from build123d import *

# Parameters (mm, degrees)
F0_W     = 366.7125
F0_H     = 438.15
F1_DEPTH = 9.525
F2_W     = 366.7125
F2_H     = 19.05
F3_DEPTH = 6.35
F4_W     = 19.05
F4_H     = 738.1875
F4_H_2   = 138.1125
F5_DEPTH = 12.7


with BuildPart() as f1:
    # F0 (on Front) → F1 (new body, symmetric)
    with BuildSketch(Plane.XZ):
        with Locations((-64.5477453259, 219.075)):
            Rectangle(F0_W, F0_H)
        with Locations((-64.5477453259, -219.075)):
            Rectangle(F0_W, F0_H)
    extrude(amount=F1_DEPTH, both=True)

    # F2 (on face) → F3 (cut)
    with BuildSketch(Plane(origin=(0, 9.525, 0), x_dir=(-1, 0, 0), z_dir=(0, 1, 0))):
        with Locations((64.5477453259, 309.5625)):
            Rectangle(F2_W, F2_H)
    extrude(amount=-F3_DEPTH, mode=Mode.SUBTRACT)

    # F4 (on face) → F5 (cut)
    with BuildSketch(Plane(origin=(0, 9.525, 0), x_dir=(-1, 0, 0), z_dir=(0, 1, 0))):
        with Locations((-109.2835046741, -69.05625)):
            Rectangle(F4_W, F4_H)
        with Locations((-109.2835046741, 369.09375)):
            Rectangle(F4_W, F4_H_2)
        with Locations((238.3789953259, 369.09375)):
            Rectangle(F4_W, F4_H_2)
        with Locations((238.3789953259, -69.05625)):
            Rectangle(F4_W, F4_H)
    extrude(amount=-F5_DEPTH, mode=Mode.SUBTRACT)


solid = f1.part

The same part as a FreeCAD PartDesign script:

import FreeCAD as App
import Part
import Sketcher
from FreeCAD import Vector
Q = App.Units.Quantity

doc = App.newDocument("Part")
body = doc.addObject("PartDesign::Body", "Body")

sketch1 = body.newObject("Sketcher::SketchObject", "Sketch")
sketch1.AttachmentSupport = (doc.getObject("XZ_Plane"), [""])
sketch1.MapMode = "FlatFace"
sketch1.addGeometry(Part.LineSegment(Vector(-248, 438, 0), Vector(-248, -438, 0)), False)
sketch1.addGeometry(Part.LineSegment(Vector(-248, -438, 0), Vector(119, -438, 0)), False)
sketch1.addGeometry(Part.LineSegment(Vector(119, -438, 0), Vector(119, 438, 0)), False)
sketch1.addGeometry(Part.LineSegment(Vector(119, 438, 0), Vector(-248, 438, 0)), False)
sketch1.addConstraint(Sketcher.Constraint("Coincident", 0, 2, 1, 1))
sketch1.addConstraint(Sketcher.Constraint("Coincident", 1, 2, 2, 1))
sketch1.addConstraint(Sketcher.Constraint("Coincident", 2, 2, 3, 1))
sketch1.addConstraint(Sketcher.Constraint("Coincident", 3, 2, 0, 1))
sketch1.addConstraint(Sketcher.Constraint("Vertical", 0))
sketch1.addConstraint(Sketcher.Constraint("Horizontal", 1))
sketch1.addConstraint(Sketcher.Constraint("Vertical", 2))
sketch1.addConstraint(Sketcher.Constraint("Horizontal", 3))
sketch1.addConstraint(Sketcher.Constraint("DistanceY", 0, 2, 0, 1, Q("34.5 in")))
sketch1.addConstraint(Sketcher.Constraint("DistanceX", 1, 1, 1, 2, Q("14.4375 in")))
sketch1.addConstraint(Sketcher.Constraint("DistanceX", 0, 2, -1, 1, Q("9.7599998 in")))
sketch1.addConstraint(Sketcher.Constraint("DistanceY", 0, 2, -1, 1, Q("17.25 in")))
pad1 = body.newObject("PartDesign::Pad", "Pad")
pad1.Profile = sketch1
pad1.Length = Q("0.75 in")
pad1.Midplane = True

sketch2 = body.newObject("Sketcher::SketchObject", "Sketch001")
sketch2.AttachmentSupport = (doc.getObject("XZ_Plane"), [""])
sketch2.MapMode = "FlatFace"
sketch2.AttachmentOffset = App.Placement(Vector(0, 0, -0.375 * 25.4), App.Rotation())
sketch2.addGeometry(Part.LineSegment(Vector(119, 319, 0), Vector(119, 300, 0)), False)
sketch2.addGeometry(Part.LineSegment(Vector(119, 300, 0), Vector(-248, 300, 0)), False)
sketch2.addGeometry(Part.LineSegment(Vector(-248, 300, 0), Vector(-248, 319, 0)), False)
sketch2.addGeometry(Part.LineSegment(Vector(-248, 319, 0), Vector(119, 319, 0)), False)
sketch2.addConstraint(Sketcher.Constraint("Coincident", 0, 2, 1, 1))
sketch2.addConstraint(Sketcher.Constraint("Coincident", 1, 2, 2, 1))
sketch2.addConstraint(Sketcher.Constraint("Coincident", 2, 2, 3, 1))
sketch2.addConstraint(Sketcher.Constraint("Coincident", 3, 2, 0, 1))
sketch2.addConstraint(Sketcher.Constraint("Vertical", 0))
sketch2.addConstraint(Sketcher.Constraint("Horizontal", 1))
sketch2.addConstraint(Sketcher.Constraint("Vertical", 2))
sketch2.addConstraint(Sketcher.Constraint("Horizontal", 3))
sketch2.addConstraint(Sketcher.Constraint("DistanceY", 0, 2, 0, 1, Q("0.75 in")))
sketch2.addConstraint(Sketcher.Constraint("DistanceX", 1, 2, 1, 1, Q("14.4375 in")))
sketch2.addConstraint(Sketcher.Constraint("DistanceX", 1, 2, -1, 1, Q("9.7599998 in")))
sketch2.addConstraint(Sketcher.Constraint("DistanceY", -1, 1, 0, 2, Q("11.8125 in")))
pocket1 = body.newObject("PartDesign::Pocket", "Pocket")
pocket1.Profile = sketch2
pocket1.Length = Q("0.25 in")
pocket1.Reversed = True

sketch3 = body.newObject("Sketcher::SketchObject", "Sketch002")
sketch3.AttachmentSupport = (doc.getObject("XZ_Plane"), [""])
sketch3.MapMode = "FlatFace"
sketch3.AttachmentOffset = App.Placement(Vector(0, 0, -0.375 * 25.4), App.Rotation())
sketch3.addGeometry(Part.LineSegment(Vector(119, -438, 0), Vector(100, -438, 0)), False)
sketch3.addGeometry(Part.LineSegment(Vector(100, -438, 0), Vector(100, 438, 0)), False)
sketch3.addGeometry(Part.LineSegment(Vector(100, 438, 0), Vector(119, 438, 0)), False)
sketch3.addGeometry(Part.LineSegment(Vector(119, 438, 0), Vector(119, -438, 0)), False)
sketch3.addGeometry(Part.LineSegment(Vector(-229, 438, 0), Vector(-229, -438, 0)), False)
sketch3.addGeometry(Part.LineSegment(Vector(-229, -438, 0), Vector(-248, -438, 0)), False)
sketch3.addGeometry(Part.LineSegment(Vector(-248, -438, 0), Vector(-248, 438, 0)), False)
sketch3.addGeometry(Part.LineSegment(Vector(-248, 438, 0), Vector(-229, 438, 0)), False)
sketch3.addConstraint(Sketcher.Constraint("Coincident", 0, 2, 1, 1))
sketch3.addConstraint(Sketcher.Constraint("Coincident", 1, 2, 2, 1))
sketch3.addConstraint(Sketcher.Constraint("Coincident", 2, 2, 3, 1))
sketch3.addConstraint(Sketcher.Constraint("Coincident", 3, 2, 0, 1))
sketch3.addConstraint(Sketcher.Constraint("Coincident", 4, 2, 5, 1))
sketch3.addConstraint(Sketcher.Constraint("Coincident", 5, 2, 6, 1))
sketch3.addConstraint(Sketcher.Constraint("Coincident", 6, 2, 7, 1))
sketch3.addConstraint(Sketcher.Constraint("Coincident", 7, 2, 4, 1))
sketch3.addConstraint(Sketcher.Constraint("Horizontal", 0))
sketch3.addConstraint(Sketcher.Constraint("Vertical", 1))
sketch3.addConstraint(Sketcher.Constraint("Horizontal", 2))
sketch3.addConstraint(Sketcher.Constraint("Vertical", 3))
sketch3.addConstraint(Sketcher.Constraint("Vertical", 4))
sketch3.addConstraint(Sketcher.Constraint("Horizontal", 5))
sketch3.addConstraint(Sketcher.Constraint("Vertical", 6))
sketch3.addConstraint(Sketcher.Constraint("Horizontal", 7))
sketch3.addConstraint(Sketcher.Constraint("Horizontal", 3, 2, 4, 2))
sketch3.addConstraint(Sketcher.Constraint("Horizontal", 2, 2, 6, 2))
sketch3.addConstraint(Sketcher.Constraint("Equal", 2, 5))
sketch3.addConstraint(Sketcher.Constraint("DistanceY", 1, 1, 1, 2, Q("34.5 in")))
sketch3.addConstraint(Sketcher.Constraint("DistanceX", 0, 2, 0, 1, Q("0.75 in")))
sketch3.addConstraint(Sketcher.Constraint("DistanceY", 0, 2, -1, 1, Q("17.25 in")))
sketch3.addConstraint(Sketcher.Constraint("DistanceX", 4, 2, -1, 1, Q("9.0099998 in")))
sketch3.addConstraint(Sketcher.Constraint("DistanceX", 4, 2, 0, 2, Q("12.9375 in")))
pocket2 = body.newObject("PartDesign::Pocket", "Pocket001")
pocket2.Profile = sketch3
pocket2.Length = Q("0.5 in")
pocket2.Reversed = True

doc.recompute()
